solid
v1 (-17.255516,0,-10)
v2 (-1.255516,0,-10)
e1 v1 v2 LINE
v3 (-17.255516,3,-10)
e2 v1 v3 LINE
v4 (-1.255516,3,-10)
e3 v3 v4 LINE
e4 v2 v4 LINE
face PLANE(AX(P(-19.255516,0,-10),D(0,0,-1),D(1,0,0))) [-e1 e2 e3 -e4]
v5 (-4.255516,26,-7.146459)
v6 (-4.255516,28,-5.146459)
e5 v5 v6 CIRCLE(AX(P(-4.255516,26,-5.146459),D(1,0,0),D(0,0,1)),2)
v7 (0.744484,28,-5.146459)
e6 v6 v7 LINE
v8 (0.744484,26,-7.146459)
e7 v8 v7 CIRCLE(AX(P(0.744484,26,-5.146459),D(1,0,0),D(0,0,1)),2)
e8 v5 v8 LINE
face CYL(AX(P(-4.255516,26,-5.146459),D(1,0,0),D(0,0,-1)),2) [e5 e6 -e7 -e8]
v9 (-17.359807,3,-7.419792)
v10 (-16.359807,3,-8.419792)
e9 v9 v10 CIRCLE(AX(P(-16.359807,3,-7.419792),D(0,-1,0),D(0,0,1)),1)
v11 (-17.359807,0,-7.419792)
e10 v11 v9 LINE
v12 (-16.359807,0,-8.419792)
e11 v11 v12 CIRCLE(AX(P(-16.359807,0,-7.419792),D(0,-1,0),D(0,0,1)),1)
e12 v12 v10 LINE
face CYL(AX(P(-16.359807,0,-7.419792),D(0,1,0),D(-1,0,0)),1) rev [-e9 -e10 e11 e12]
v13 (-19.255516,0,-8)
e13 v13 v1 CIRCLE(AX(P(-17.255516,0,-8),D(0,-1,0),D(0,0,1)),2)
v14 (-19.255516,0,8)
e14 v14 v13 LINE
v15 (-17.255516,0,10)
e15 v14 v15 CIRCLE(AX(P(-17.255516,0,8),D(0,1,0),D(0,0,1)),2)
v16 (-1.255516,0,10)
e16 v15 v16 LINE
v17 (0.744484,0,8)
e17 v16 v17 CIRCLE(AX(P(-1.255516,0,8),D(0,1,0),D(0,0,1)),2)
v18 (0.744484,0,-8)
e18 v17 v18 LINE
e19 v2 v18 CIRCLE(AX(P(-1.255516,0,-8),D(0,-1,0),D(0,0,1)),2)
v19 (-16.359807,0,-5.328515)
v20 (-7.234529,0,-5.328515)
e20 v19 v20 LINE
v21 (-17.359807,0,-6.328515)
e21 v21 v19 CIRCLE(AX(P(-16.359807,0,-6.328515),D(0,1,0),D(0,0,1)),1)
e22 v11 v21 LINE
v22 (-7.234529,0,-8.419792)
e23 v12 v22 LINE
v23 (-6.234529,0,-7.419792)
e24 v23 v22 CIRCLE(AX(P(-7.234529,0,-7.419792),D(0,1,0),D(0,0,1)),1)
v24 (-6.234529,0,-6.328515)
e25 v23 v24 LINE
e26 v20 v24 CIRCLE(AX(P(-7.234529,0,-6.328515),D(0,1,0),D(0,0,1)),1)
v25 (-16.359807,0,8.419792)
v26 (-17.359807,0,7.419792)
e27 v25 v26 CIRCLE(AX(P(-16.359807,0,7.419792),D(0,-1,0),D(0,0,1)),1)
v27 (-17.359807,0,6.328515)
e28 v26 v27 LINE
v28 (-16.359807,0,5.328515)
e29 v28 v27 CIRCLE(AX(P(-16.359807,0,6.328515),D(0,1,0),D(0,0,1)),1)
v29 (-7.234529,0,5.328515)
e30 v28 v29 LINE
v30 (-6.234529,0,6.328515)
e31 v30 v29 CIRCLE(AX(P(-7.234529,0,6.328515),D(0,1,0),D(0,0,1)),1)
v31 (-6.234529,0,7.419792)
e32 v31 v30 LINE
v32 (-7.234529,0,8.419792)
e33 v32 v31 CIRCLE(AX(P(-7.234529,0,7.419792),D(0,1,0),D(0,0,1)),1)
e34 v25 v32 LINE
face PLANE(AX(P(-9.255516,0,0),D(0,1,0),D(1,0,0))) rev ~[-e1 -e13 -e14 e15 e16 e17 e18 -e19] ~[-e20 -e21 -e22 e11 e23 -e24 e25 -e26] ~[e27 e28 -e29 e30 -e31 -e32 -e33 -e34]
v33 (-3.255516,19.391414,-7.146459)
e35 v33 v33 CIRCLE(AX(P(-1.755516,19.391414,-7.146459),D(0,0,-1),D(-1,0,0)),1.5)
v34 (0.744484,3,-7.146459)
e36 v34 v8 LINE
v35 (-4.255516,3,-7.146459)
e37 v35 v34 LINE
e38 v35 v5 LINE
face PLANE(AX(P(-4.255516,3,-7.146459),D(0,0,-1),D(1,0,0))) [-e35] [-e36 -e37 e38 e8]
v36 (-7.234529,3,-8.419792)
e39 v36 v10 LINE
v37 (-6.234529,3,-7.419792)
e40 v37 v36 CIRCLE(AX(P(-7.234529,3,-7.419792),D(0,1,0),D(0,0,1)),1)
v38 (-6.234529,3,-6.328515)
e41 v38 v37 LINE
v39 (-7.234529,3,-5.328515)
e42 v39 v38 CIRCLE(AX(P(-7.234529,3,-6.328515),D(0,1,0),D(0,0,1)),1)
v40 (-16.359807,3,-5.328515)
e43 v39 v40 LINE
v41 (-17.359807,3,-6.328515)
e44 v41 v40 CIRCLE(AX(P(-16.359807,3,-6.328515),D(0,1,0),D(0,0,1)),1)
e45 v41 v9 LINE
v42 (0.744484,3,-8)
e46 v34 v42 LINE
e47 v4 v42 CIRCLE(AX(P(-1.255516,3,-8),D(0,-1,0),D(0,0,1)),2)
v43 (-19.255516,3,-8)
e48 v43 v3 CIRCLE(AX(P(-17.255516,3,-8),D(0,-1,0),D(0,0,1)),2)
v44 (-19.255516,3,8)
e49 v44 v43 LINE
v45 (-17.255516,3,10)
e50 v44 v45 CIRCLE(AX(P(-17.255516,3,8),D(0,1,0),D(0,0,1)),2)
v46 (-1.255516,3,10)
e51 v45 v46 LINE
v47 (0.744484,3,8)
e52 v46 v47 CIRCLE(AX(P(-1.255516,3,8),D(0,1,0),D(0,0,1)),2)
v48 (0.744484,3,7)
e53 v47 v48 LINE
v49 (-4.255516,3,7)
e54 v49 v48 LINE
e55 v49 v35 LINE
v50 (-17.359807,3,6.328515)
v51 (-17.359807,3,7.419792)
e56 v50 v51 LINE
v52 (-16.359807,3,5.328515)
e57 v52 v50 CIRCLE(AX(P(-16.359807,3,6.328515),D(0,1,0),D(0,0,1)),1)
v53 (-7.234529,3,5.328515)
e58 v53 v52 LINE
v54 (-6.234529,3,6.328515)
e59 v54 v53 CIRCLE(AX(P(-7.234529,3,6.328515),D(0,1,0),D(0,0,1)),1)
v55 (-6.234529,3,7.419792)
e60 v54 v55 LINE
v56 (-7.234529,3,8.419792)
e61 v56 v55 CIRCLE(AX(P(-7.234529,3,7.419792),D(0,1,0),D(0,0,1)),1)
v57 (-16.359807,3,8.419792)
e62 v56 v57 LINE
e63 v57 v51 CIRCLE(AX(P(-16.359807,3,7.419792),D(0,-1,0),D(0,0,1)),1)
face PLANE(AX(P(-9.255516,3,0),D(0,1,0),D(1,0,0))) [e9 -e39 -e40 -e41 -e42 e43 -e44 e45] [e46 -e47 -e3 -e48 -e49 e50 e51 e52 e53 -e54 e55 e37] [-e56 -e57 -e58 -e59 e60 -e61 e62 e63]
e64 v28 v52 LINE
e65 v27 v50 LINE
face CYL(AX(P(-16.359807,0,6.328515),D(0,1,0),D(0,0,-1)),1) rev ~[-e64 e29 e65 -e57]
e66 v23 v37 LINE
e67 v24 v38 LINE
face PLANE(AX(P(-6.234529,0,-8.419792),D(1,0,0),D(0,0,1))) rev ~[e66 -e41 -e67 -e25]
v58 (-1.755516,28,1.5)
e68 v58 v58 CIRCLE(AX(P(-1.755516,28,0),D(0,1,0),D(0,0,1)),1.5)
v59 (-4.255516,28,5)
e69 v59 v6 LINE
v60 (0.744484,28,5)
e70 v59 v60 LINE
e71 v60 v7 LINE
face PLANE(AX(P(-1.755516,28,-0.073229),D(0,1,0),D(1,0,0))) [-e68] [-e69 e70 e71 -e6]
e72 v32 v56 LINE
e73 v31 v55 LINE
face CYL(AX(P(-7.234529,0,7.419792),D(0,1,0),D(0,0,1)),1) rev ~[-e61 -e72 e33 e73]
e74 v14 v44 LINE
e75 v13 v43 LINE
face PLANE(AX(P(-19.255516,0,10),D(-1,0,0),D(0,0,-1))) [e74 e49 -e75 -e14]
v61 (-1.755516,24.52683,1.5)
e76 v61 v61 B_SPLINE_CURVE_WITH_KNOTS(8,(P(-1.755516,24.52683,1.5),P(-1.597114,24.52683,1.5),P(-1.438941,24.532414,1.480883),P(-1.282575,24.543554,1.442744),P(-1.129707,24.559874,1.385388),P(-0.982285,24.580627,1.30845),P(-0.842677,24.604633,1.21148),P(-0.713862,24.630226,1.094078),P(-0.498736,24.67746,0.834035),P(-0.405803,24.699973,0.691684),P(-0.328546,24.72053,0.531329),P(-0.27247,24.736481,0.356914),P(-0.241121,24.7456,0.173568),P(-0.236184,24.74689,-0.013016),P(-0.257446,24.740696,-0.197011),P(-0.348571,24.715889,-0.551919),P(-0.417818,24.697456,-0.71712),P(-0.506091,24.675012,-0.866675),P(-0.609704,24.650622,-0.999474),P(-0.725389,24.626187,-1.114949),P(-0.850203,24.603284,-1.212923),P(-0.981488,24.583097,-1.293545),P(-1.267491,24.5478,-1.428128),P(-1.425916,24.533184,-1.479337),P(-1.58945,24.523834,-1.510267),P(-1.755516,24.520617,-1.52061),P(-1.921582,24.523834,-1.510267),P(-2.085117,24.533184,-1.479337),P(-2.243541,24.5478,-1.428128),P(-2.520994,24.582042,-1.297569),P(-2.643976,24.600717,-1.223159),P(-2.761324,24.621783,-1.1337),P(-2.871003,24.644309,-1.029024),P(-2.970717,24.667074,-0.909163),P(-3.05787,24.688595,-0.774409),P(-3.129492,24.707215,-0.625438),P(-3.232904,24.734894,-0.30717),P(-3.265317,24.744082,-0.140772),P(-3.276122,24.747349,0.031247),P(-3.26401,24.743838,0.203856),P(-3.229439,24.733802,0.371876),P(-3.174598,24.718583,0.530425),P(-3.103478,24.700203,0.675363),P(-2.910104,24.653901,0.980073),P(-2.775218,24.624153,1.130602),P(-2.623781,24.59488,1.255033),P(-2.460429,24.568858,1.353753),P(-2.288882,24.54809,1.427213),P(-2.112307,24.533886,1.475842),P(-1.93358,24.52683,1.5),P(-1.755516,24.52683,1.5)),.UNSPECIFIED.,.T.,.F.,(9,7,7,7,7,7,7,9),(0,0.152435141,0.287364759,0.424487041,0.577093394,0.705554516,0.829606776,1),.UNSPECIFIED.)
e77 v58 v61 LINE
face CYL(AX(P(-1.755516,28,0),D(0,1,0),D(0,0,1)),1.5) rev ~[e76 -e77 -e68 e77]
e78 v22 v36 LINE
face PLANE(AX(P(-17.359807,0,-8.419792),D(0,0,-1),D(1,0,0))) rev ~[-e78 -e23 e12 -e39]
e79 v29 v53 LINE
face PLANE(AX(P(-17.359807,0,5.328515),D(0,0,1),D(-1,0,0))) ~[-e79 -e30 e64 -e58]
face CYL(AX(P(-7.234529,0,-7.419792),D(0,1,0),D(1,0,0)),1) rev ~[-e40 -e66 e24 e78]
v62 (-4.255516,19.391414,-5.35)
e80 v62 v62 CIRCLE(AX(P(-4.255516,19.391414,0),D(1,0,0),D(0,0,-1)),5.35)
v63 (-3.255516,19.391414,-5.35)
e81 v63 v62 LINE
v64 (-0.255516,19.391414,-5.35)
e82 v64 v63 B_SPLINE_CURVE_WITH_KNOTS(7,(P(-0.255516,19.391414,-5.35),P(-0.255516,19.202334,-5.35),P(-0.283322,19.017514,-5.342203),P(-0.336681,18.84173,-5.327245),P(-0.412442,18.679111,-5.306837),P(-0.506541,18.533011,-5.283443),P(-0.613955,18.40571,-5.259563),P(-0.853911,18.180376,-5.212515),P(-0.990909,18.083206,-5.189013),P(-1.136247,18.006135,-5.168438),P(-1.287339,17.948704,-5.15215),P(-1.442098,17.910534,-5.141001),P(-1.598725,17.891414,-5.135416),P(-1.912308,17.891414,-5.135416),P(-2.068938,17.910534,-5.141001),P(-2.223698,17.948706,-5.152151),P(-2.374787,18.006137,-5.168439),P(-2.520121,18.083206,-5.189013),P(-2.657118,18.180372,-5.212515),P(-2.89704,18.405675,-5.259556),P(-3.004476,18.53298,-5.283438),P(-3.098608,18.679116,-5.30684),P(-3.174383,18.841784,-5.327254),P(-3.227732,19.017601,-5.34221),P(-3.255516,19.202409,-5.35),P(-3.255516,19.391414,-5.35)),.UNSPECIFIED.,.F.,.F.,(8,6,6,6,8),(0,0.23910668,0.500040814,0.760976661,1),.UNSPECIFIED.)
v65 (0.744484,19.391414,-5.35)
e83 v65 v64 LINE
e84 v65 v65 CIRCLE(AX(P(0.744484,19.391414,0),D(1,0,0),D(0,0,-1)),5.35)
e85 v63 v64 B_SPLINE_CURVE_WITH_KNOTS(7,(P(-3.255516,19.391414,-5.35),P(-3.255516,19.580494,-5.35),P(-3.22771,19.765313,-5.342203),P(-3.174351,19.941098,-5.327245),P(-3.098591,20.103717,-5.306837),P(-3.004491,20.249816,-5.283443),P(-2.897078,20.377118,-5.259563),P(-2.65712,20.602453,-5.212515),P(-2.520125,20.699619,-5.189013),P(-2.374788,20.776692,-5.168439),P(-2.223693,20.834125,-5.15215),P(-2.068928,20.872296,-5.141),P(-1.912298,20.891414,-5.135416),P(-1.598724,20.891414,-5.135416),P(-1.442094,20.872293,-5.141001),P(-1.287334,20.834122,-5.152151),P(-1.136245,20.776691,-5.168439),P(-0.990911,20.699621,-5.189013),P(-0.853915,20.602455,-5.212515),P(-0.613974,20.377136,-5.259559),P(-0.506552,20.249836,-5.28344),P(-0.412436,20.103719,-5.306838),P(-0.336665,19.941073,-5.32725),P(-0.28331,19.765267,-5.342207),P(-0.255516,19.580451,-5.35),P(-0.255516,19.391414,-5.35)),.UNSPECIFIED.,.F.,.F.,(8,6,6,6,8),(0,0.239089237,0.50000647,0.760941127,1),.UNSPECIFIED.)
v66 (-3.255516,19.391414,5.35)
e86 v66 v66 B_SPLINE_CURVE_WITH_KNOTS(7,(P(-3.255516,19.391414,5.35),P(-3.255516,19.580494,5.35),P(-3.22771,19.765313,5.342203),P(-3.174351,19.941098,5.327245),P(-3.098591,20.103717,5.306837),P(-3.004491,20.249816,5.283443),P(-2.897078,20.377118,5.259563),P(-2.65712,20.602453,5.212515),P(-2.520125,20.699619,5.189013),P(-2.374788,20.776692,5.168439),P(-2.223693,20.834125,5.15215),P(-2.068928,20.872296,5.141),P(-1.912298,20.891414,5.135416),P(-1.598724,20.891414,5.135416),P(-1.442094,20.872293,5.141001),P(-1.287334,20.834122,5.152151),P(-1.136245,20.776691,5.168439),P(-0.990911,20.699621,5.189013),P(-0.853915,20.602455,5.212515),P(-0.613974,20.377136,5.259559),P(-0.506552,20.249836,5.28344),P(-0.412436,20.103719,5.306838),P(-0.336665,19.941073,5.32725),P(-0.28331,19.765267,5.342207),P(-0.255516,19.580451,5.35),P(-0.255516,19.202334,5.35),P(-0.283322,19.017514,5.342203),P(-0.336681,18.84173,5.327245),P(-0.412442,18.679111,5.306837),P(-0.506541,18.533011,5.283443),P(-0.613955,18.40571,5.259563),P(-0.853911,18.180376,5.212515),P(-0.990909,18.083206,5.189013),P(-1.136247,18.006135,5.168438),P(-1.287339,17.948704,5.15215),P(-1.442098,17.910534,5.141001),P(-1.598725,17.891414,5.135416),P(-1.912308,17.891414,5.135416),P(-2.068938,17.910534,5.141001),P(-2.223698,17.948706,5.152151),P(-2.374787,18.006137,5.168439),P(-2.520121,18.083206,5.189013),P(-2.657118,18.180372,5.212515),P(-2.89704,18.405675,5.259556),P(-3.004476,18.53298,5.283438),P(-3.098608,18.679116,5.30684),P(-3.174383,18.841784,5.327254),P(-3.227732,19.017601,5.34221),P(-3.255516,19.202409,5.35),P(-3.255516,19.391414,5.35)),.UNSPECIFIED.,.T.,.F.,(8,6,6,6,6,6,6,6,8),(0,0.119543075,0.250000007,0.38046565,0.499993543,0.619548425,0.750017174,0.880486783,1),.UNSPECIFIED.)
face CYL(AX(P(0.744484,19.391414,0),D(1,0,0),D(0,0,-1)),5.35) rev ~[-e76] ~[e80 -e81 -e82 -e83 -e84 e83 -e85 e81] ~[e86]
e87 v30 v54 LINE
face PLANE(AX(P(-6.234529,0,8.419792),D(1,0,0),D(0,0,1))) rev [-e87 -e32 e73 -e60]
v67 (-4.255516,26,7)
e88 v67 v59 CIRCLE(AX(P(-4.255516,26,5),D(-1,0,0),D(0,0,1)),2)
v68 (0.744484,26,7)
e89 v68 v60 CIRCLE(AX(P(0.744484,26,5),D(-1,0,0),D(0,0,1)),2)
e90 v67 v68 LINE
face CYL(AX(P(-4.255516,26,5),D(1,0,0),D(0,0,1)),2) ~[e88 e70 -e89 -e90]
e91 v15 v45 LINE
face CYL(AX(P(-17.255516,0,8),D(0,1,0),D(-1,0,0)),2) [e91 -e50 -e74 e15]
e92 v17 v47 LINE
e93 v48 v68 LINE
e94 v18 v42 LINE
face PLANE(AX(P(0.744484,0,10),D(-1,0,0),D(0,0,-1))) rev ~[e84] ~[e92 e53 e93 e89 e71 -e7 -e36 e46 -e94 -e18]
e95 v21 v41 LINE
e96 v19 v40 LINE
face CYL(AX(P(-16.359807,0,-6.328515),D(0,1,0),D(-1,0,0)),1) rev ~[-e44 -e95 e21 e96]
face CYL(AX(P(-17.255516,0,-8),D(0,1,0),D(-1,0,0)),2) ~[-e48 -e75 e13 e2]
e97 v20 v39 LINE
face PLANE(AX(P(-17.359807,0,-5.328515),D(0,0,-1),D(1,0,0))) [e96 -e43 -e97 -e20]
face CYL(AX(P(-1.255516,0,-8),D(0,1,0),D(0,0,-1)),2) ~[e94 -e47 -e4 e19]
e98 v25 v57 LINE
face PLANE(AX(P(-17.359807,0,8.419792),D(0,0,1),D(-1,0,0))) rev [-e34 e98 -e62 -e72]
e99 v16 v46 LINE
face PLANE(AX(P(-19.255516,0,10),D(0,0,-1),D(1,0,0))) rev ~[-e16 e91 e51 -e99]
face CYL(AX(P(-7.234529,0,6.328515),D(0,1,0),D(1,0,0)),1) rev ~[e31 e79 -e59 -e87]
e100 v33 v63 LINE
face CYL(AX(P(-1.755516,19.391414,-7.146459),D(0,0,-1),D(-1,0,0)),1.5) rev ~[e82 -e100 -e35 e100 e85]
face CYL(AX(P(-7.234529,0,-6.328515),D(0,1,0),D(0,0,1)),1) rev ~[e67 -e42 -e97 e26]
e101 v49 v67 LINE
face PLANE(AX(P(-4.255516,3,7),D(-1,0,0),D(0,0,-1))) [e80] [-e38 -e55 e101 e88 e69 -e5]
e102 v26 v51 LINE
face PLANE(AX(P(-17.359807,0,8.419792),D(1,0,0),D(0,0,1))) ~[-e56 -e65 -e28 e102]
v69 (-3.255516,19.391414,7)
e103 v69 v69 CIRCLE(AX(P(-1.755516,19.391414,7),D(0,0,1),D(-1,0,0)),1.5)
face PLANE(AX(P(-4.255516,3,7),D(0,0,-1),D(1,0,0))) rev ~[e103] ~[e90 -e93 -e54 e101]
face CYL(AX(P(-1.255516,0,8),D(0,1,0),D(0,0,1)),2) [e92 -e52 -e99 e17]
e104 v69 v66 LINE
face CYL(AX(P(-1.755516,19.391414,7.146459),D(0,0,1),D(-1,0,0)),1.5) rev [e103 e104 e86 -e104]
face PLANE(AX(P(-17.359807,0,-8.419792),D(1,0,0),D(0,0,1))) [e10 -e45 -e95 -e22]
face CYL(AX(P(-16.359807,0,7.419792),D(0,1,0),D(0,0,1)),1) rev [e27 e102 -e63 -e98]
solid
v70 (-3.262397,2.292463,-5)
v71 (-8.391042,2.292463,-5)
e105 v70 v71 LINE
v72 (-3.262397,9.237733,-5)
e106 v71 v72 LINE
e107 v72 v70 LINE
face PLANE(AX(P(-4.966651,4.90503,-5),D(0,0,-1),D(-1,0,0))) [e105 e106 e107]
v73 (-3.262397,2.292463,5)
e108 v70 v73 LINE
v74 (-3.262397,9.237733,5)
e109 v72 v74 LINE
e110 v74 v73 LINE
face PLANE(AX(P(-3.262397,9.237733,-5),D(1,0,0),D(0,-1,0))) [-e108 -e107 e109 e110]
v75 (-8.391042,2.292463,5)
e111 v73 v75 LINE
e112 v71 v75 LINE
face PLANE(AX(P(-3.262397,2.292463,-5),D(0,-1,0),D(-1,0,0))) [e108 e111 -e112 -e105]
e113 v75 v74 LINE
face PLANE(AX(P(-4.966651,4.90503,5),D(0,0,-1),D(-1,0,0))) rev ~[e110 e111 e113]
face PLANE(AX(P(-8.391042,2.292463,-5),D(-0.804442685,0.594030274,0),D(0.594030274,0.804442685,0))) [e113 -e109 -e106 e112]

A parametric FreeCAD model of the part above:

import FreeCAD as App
import Part
import Sketcher
from FreeCAD import Vector
Q = App.Units.Quantity


def edges_at(feature, points):
    """Names of the edges that pass closest to the given points."""
    edges = feature.Shape.Edges
    near = lambda p: min(range(len(edges)), key=lambda i: edges[i].distToShape(Part.Vertex(*p))[0])
    return sorted({f"Edge{near(p) + 1}" for p in points})


def add_polygon(sketch, points):
    """Adds a closed chain of lines whose ends are joined by coincident constraints."""
    first, n = sketch.GeometryCount, len(points)
    for a, b in zip(points, points[1:] + points[:1]):
        sketch.addGeometry(Part.LineSegment(App.Vector(*a, 0), App.Vector(*b, 0)), False)
    for i in range(n):
        sketch.addConstraint(Sketcher.Constraint("Coincident", first + i, 2, first + (i + 1) % n, 1))

doc = App.newDocument("Part")
body = doc.addObject("PartDesign::Body", "Body")

sketch1 = body.newObject("Sketcher::SketchObject", "Sketch")
sketch1.AttachmentSupport = (doc.getObject("XZ_Plane"), [""])
sketch1.MapMode = "FlatFace"
add_polygon(sketch1, [(-19, -10), (-19, 10), (1, 10), (1, -10)])
sketch1.addConstraint([
    Sketcher.Constraint("Vertical", 0),
    Sketcher.Constraint("Horizontal", 1),
    Sketcher.Constraint("Vertical", 2),
    Sketcher.Constraint("Horizontal", 3),
    Sketcher.Constraint("Equal", 3, 0),
    Sketcher.Constraint("DistanceX", 1, 1, 1, 2, Q("20 mm")),
    Sketcher.Constraint("DistanceY", -1, 1, 0, 2, Q("10 mm")),
    Sketcher.Constraint("DistanceX", 0, 2, -1, 1, Q("19.255516 mm")),
])
pad1 = body.newObject("PartDesign::Pad", "Pad")
pad1.Profile = sketch1
pad1.Length = 3
pad1.Reversed = True

sketch2 = body.newObject("Sketcher::SketchObject", "Sketch001")
sketch2.AttachmentSupport = (doc.getObject("XZ_Plane"), [""])
sketch2.MapMode = "FlatFace"
sketch2.AttachmentOffset = App.Placement(Vector(0, 0, -3), App.Rotation())
add_polygon(sketch2, [(-4, -7), (-4, 7), (1, 7), (1, -7)])
sketch2.addConstraint([
    Sketcher.Constraint("Vertical", 0),
    Sketcher.Constraint("Horizontal", 1),
    Sketcher.Constraint("Vertical", 2),
    Sketcher.Constraint("Horizontal", 3),
    Sketcher.Constraint("DistanceX", 1, 1, 1, 2, Q("5 mm")),
    Sketcher.Constraint("DistanceY", -1, 1, 0, 2, Q("7 mm")),
    Sketcher.Constraint("DistanceY", 0, 1, 0, 2, Q("14.146459 mm")),
    Sketcher.Constraint("DistanceX", 0, 2, -1, 1, Q("4.255516 mm")),
])
pad2 = body.newObject("PartDesign::Pad", "Pad001")
pad2.Profile = sketch2
pad2.Length = 25
pad2.Reversed = True

sketch3 = body.newObject("Sketcher::SketchObject", "Sketch002")
sketch3.AttachmentSupport = (doc.getObject("YZ_Plane"), [""])
sketch3.MapMode = "FlatFace"
sketch3.AttachmentOffset = App.Placement(Vector(0, 0, 0.744484), App.Rotation())
sketch3.addGeometry(Part.Circle(Vector(19, 0, 0), Vector(0, 0, 1), 5), False)
sketch3.addConstraint([
    Sketcher.Constraint("PointOnObject", 0, 3, -1),
    Sketcher.Constraint("Diameter", 0, Q("10.7 mm")),
    Sketcher.Constraint("DistanceX", -1, 1, 0, 3, Q("19.391414 mm")),
])
pocket1 = body.newObject("PartDesign::Pocket", "Pocket")
pocket1.Profile = sketch3
pocket1.Length = 5

sketch4 = body.newObject("Sketcher::SketchObject", "Sketch003")
sketch4.AttachmentSupport = (doc.getObject("XZ_Plane"), [""])
sketch4.MapMode = "FlatFace"
add_polygon(sketch4, [(-17.4, -5.3), (-17.4, -8.4), (-6.2, -8.4), (-6.2, -5.3)])
sketch4.addConstraint([
    Sketcher.Constraint("Vertical", 0),
    Sketcher.Constraint("Horizontal", 1),
    Sketcher.Constraint("Vertical", 2),
    Sketcher.Constraint("Horizontal", 3),
    Sketcher.Constraint("DistanceX", 1, 1, 1, 2, Q("11.125279 mm")),
    Sketcher.Constraint("DistanceY", 0, 2, 0, 1, Q("3.091277 mm")),
    Sketcher.Constraint("DistanceX", 1, 2, -1, 1, Q("6.234529 mm")),
    Sketcher.Constraint("DistanceY", 0, 2, -1, 1, Q("8.419792 mm")),
])
pocket2 = body.newObject("PartDesign::Pocket", "Pocket001")
pocket2.Profile = sketch4
pocket2.Length = 10
doc.recompute()

fillet = body.newObject("PartDesign::Fillet", "Fillet")
fillet.Base = (pocket2, edges_at(pocket2, [
    (-6.235, 1.5, -5.329),
    (-6.235, 1.5, -8.42),
    (-17.36, 1.5, -8.42),
    (-17.36, 1.5, -5.329),
]))
fillet.Radius = 1
doc.recompute()

mirrored = body.newObject("PartDesign::Mirrored", "Mirrored")
mirrored.Originals = [pocket2]
mirrored.MirrorPlane = (doc.getObject("XY_Plane"), [""])
body.Tip = mirrored
doc.recompute()

fillet2 = body.newObject("PartDesign::Fillet", "Fillet001")
fillet2.Base = (mirrored, edges_at(mirrored, [
    (-6.235, 1.5, 5.329),
    (-6.235, 1.5, 8.42),
    (-17.36, 1.5, 8.42),
    (-17.36, 1.5, 5.329),
]))
fillet2.Radius = 1
doc.recompute()

fillet3 = body.newObject("PartDesign::Fillet", "Fillet002")
fillet3.Base = (fillet2, edges_at(fillet2, [
    (0.744, 1.5, 10),
    (-19.256, 1.5, 10),
    (-19.256, 1.5, -10),
    (0.744, 1.5, -10),
]))
fillet3.Radius = 2
doc.recompute()

fillet4 = body.newObject("PartDesign::Fillet", "Fillet003")
fillet4.Base = (fillet3, edges_at(fillet3, [(-1.756, 28, 7), (-1.756, 28, -7.146)]))
fillet4.Radius = 2

sketch5 = body.newObject("Sketcher::SketchObject", "Sketch004")
sketch5.AttachmentSupport = (doc.getObject("XY_Plane"), [""])
sketch5.MapMode = "FlatFace"
sketch5.AttachmentOffset = App.Placement(Vector(0, 0, -7.146459), App.Rotation())
sketch5.addGeometry(Part.Circle(Vector(-1.8, 19.4, 0), Vector(0, 0, 1), 1.5), False)
sketch5.addConstraint([
    Sketcher.Constraint("Diameter", 0, Q("3 mm")),
    Sketcher.Constraint("DistanceX", 0, 3, -1, 1, Q("1.755516 mm")),
    Sketcher.Constraint("DistanceY", -1, 1, 0, 3, Q("19.391414 mm")),
])
pocket3 = body.newObject("PartDesign::Pocket", "Pocket002")
pocket3.Profile = sketch5
pocket3.Length = 5
pocket3.Reversed = True
doc.recompute()

mirrored2 = body.newObject("PartDesign::Mirrored", "Mirrored001")
mirrored2.Originals = [pocket3]
mirrored2.MirrorPlane = (doc.getObject("XY_Plane"), [""])
body.Tip = mirrored2

sketch6 = body.newObject("Sketcher::SketchObject", "Sketch005")
sketch6.AttachmentSupport = (doc.getObject("XZ_Plane"), [""])
sketch6.MapMode = "FlatFace"
sketch6.AttachmentOffset = App.Placement(Vector(0, 0, -28), App.Rotation())
sketch6.addGeometry(Part.Circle(Vector(-1.8, 0, 0), Vector(0, 0, 1), 1.5), False)
sketch6.addConstraint([
    Sketcher.Constraint("PointOnObject", 0, 3, -1),
    Sketcher.Constraint("Diameter", 0, Q("3 mm")),
    Sketcher.Constraint("DistanceX", 0, 3, -1, 1, Q("1.755516 mm")),
])
pocket4 = body.newObject("PartDesign::Pocket", "Pocket003")
pocket4.Profile = sketch6
pocket4.Length = 5
pocket4.Reversed = True
body2 = doc.addObject("PartDesign::Body", "Body001")

sketch7 = body2.newObject("Sketcher::SketchObject", "Sketch006")
sketch7.AttachmentSupport = (doc.getObject("XY_Plane001"), [""])
sketch7.MapMode = "FlatFace"
add_polygon(sketch7, [(-8, 2), (-3, 2), (-3, 9)])
sketch7.addConstraint([
    Sketcher.Constraint("Horizontal", 0),
    Sketcher.Constraint("Vertical", 1),
    Sketcher.Constraint("DistanceY", 1, 1, 1, 2, Q("6.945271 mm")),
    Sketcher.Constraint("DistanceX", 0, 1, 0, 2, Q("5.128645 mm")),
    Sketcher.Constraint("DistanceX", 2, 2, -1, 1, Q("8.391042 mm")),
    Sketcher.Constraint("DistanceY", -1, 1, 0, 2, Q("2.292463 mm")),
])
pad3 = body2.newObject("PartDesign::Pad", "Pad002")
pad3.Profile = sketch7
pad3.Type = "TwoLengths"
pad3.Length = 5
pad3.Length2 = 5

doc.recompute()
